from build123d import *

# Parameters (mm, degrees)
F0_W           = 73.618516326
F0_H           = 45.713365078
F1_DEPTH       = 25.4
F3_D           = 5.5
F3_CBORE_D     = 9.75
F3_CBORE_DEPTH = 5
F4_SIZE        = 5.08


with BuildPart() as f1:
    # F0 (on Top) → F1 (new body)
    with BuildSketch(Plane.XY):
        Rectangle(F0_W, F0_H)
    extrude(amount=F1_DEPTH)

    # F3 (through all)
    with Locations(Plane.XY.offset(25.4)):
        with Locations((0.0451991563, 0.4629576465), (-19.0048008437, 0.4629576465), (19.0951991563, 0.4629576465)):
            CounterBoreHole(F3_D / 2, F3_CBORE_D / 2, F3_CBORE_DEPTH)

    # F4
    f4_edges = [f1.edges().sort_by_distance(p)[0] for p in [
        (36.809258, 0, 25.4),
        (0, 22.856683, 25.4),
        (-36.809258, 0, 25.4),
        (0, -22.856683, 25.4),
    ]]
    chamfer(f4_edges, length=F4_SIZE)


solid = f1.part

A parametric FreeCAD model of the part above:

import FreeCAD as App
import Part
import Sketcher

V = App.Vector
Q = App.Units.Quantity


def edges_at(feature, points):
    """Names of the edges that pass closest to the given points."""
    edges = feature.Shape.Edges
    near = lambda p: min(range(len(edges)), key=lambda i: edges[i].distToShape(Part.Vertex(*p))[0])
    return sorted({f"Edge{near(p) + 1}" for p in points})


def add_polygon(sketch, points):
    """Adds a closed chain of lines whose ends are joined by coincident constraints."""
    first, n = sketch.GeometryCount, len(points)
    for a, b in zip(points, points[1:] + points[:1]):
        sketch.addGeometry(Part.LineSegment(App.Vector(*a, 0), App.Vector(*b, 0)), False)
    for i in range(n):
        sketch.addConstraint(Sketcher.Constraint("Coincident", first + i, 2, first + (i + 1) % n, 1))

doc = App.newDocument("Part")
params = doc.addObject("Spreadsheet::Sheet", "Params")
for row, (alias, value) in enumerate([
    ("pad1_length", "1 in"),
    ("hole_diameter", "5.5 mm"),
    ("hole_cbore_diameter", "9.75 mm"),
    ("hole_cbore_depth", "5 mm"),
    ("chamfer_size", "0.2 in"),
], start=1):
    params.set(f"A{row}", alias)
    params.set(f"B{row}", "=" + value)
    params.setAlias(f"B{row}", alias)

body = doc.addObject("PartDesign::Body", "Body")

# Sketch on XY plane
sketch1 = doc.addObject("Sketcher::SketchObject", "Sketch")
body.addObject(sketch1)
sketch1.AttachmentSupport = (doc.XY_Plane, [""])
sketch1.MapMode = "FlatFace"
add_polygon(sketch1, [(-37, 23), (-37, -23), (37, -23), (37, 23)])  # lines 0-3
sketch1.addConstraint(Sketcher.Constraint("Vertical", 0))
sketch1.addConstraint(Sketcher.Constraint("Horizontal", 1))
sketch1.addConstraint(Sketcher.Constraint("Vertical", 2))
sketch1.addConstraint(Sketcher.Constraint("Horizontal", 3))
sketch1.addConstraint(Sketcher.Constraint("Symmetric", 0, 2, 2, 2, -1, 1))
sketch1.addConstraint(Sketcher.Constraint("DistanceX", 1, 1, 1, 2, Q("73.618516 mm")))
sketch1.addConstraint(Sketcher.Constraint("DistanceY", 0, 2, 0, 1, Q("45.713365 mm")))
pad1 = doc.addObject("PartDesign::Pad", "Pad")
body.addObject(pad1)
pad1.Profile = sketch1
pad1.setExpression("Length", "Params.pad1_length")

# Sketch on XY plane
sketch2 = doc.addObject("Sketcher::SketchObject", "Sketch001")
body.addObject(sketch2)
sketch2.AttachmentSupport = (doc.XY_Plane, [""])
sketch2.MapMode = "FlatFace"
sketch2.AttachmentOffset = App.Placement(V(0, 0, 1 * 25.4), App.Rotation())
sketch2.addGeometry(Part.Circle(V(0, 0.5, 0), V(0, 0, 1), 2.8), False)
sketch2.addGeometry(Part.Circle(V(-19, 0.5, 0), V(0, 0, 1), 2.8), False)
sketch2.addGeometry(Part.Circle(V(19.1, 0.5, 0), V(0, 0, 1), 2.8), False)
sketch2.addConstraint(Sketcher.Constraint("Equal", 0, 1))
sketch2.addConstraint(Sketcher.Constraint("Equal", 1, 2))
sketch2.addConstraint(Sketcher.Constraint("Horizontal", 0, 3, 1, 3))
sketch2.addConstraint(Sketcher.Constraint("Horizontal", 1, 3, 2, 3))
sketch2.addConstraint(Sketcher.Constraint("DistanceX", 1, 3, 2, 3, Q("1.5 in")))
sketch2.addConstraint(Sketcher.Constraint("Diameter", 0, Q("5.5 mm")))
sketch2.addConstraint(Sketcher.Constraint("DistanceX", 1, 3, 0, 3, Q("0.75 in")))
sketch2.addConstraint(Sketcher.Constraint("DistanceX", -1, 1, 0, 3, Q("0.045199 mm")))
sketch2.addConstraint(Sketcher.Constraint("DistanceY", -1, 1, 0, 3, Q("0.462958 mm")))
doc.recompute()
hole = doc.addObject("PartDesign::Hole", "Hole")
body.addObject(hole)
hole.Profile = sketch2
hole.ThreadType = "None"
hole.setExpression("Diameter", "Params.hole_diameter")
hole.DepthType = "ThroughAll"
hole.HoleCutType = "Counterbore"
hole.setExpression("HoleCutDiameter", "Params.hole_cbore_diameter")
hole.setExpression("HoleCutDepth", "Params.hole_cbore_depth")
doc.recompute()

chamfer = doc.addObject("PartDesign::Chamfer", "Chamfer")
body.addObject(chamfer)
chamfer.Base = (hole, edges_at(hole, [
    (36.809, 0, 25.4),
    (0, 22.857, 25.4),
    (-36.809, 0, 25.4),
    (0, -22.857, 25.4),
]))
chamfer.setExpression("Size", "Params.chamfer_size")

doc.recompute()
